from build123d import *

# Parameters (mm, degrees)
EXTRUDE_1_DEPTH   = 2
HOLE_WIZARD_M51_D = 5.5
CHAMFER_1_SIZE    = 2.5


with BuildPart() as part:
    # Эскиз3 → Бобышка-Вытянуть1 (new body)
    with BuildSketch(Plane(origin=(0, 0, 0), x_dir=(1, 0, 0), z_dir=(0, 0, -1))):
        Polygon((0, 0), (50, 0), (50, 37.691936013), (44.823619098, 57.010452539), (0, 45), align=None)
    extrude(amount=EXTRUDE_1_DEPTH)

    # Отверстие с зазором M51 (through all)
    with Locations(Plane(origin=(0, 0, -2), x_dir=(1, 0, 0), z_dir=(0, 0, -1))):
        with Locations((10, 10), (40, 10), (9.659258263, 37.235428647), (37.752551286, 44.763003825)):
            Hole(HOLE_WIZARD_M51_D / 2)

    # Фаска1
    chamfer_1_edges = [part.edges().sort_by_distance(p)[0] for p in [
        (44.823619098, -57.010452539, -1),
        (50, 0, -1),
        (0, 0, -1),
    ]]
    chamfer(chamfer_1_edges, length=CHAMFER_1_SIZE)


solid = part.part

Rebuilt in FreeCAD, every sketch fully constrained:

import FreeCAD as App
import Part
import Sketcher

V = App.Vector
Q = App.Units.Quantity


def edges_at(feature, points):
    """Names of the edges that pass closest to the given points."""
    edges = feature.Shape.Edges
    near = lambda p: min(range(len(edges)), key=lambda i: edges[i].distToShape(Part.Vertex(*p))[0])
    return sorted({f"Edge{near(p) + 1}" for p in points})

doc = App.newDocument("Part")
body = doc.addObject("PartDesign::Body", "Body")

# Sketch on XY plane
sketch1 = body.newObject("Sketcher::SketchObject", "Sketch")
sketch1.AttachmentSupport = (doc.getObject("XY_Plane"), [""])
sketch1.MapMode = "FlatFace"
sketch1.addGeometry([
    Part.LineSegment(V(0, 0, 0), V(50, 0, 0)),  # 0
    Part.LineSegment(V(50, 0, 0), V(50, -38, 0)),  # 1
    Part.LineSegment(V(50, -38, 0), V(45, -57, 0)),  # 2
    Part.LineSegment(V(45, -57, 0), V(0, -45, 0)),  # 3
    Part.LineSegment(V(0, -45, 0), V(0, 0, 0)),  # 4
], False)
sketch1.addConstraint([
    Sketcher.Constraint("Coincident", 0, 2, 1, 1),
    Sketcher.Constraint("Coincident", 1, 2, 2, 1),
    Sketcher.Constraint("Coincident", 2, 2, 3, 1),
    Sketcher.Constraint("Coincident", 3, 2, 4, 1),
    Sketcher.Constraint("Coincident", 4, 2, 0, 1),
    Sketcher.Constraint("Horizontal", 0),
    Sketcher.Constraint("Vertical", 1),
    Sketcher.Constraint("Vertical", 4),
    Sketcher.Constraint("Coincident", 4, 2, -1, 1),
    Sketcher.Constraint("Perpendicular", 2, 3),
    Sketcher.Constraint("DistanceX", 0, 1, 0, 2, Q("50 mm")),
    Sketcher.Constraint("DistanceY", 4, 1, 4, 2, Q("45 mm")),
    Sketcher.Constraint("Angle", 2, Q("-105 deg")),
    Sketcher.Constraint("Distance", 2, Q("20 mm")),
])
pad1 = body.newObject("PartDesign::Pad", "Pad")
pad1.Profile = sketch1
pad1.Length = 2
pad1.Reversed = True

# Sketch on XY plane
sketch2 = body.newObject("Sketcher::SketchObject", "Sketch001")
sketch2.AttachmentSupport = (doc.getObject("XY_Plane"), [""])
sketch2.MapMode = "FlatFace"
sketch2.AttachmentOffset = App.Placement(V(0, 0, -2), App.Rotation())
sketch2.addGeometry([
    Part.Circle(V(10, -10, 0), V(0, 0, 1), 2.8),
    Part.Circle(V(40, -10, 0), V(0, 0, 1), 2.8),
    Part.Circle(V(9.7, -37.2, 0), V(0, 0, 1), 2.8),
    Part.Circle(V(37.8, -44.8, 0), V(0, 0, 1), 2.8),
], False)
sketch2.addConstraint([
    Sketcher.Constraint("Equal", 0, 1),
    Sketcher.Constraint("Equal", 1, 2),
    Sketcher.Constraint("Equal", 2, 3),
    Sketcher.Constraint("Horizontal", 0, 3, 1, 3),
    Sketcher.Constraint("Diameter", 0, Q("5.5 mm")),
    Sketcher.Constraint("DistanceX", -1, 1, 0, 3, Q("10 mm")),
    Sketcher.Constraint("DistanceY", 0, 3, -1, 1, Q("10 mm")),
    Sketcher.Constraint("DistanceX", -1, 1, 1, 3, Q("40 mm")),
    Sketcher.Constraint("DistanceX", -1, 1, 2, 3, Q("9.659258 mm")),
    Sketcher.Constraint("DistanceY", 2, 3, -1, 1, Q("37.235429 mm")),
    Sketcher.Constraint("DistanceX", -1, 1, 3, 3, Q("37.752551 mm")),
    Sketcher.Constraint("DistanceY", 3, 3, -1, 1, Q("44.763004 mm")),
])
doc.recompute()
hole = body.newObject("PartDesign::Hole", "Hole")
hole.Profile = sketch2
hole.ThreadType = "None"
hole.Diameter = 5.5
hole.DepthType = "ThroughAll"
hole.Reversed = True
doc.recompute()

chamfer = body.newObject("PartDesign::Chamfer", "Chamfer")
chamfer.Base = (hole, edges_at(hole, [(44.824, -57.01, -1), (50, 0, -1), (0, 0, -1)]))
chamfer.Size = 2.5

doc.recompute()
